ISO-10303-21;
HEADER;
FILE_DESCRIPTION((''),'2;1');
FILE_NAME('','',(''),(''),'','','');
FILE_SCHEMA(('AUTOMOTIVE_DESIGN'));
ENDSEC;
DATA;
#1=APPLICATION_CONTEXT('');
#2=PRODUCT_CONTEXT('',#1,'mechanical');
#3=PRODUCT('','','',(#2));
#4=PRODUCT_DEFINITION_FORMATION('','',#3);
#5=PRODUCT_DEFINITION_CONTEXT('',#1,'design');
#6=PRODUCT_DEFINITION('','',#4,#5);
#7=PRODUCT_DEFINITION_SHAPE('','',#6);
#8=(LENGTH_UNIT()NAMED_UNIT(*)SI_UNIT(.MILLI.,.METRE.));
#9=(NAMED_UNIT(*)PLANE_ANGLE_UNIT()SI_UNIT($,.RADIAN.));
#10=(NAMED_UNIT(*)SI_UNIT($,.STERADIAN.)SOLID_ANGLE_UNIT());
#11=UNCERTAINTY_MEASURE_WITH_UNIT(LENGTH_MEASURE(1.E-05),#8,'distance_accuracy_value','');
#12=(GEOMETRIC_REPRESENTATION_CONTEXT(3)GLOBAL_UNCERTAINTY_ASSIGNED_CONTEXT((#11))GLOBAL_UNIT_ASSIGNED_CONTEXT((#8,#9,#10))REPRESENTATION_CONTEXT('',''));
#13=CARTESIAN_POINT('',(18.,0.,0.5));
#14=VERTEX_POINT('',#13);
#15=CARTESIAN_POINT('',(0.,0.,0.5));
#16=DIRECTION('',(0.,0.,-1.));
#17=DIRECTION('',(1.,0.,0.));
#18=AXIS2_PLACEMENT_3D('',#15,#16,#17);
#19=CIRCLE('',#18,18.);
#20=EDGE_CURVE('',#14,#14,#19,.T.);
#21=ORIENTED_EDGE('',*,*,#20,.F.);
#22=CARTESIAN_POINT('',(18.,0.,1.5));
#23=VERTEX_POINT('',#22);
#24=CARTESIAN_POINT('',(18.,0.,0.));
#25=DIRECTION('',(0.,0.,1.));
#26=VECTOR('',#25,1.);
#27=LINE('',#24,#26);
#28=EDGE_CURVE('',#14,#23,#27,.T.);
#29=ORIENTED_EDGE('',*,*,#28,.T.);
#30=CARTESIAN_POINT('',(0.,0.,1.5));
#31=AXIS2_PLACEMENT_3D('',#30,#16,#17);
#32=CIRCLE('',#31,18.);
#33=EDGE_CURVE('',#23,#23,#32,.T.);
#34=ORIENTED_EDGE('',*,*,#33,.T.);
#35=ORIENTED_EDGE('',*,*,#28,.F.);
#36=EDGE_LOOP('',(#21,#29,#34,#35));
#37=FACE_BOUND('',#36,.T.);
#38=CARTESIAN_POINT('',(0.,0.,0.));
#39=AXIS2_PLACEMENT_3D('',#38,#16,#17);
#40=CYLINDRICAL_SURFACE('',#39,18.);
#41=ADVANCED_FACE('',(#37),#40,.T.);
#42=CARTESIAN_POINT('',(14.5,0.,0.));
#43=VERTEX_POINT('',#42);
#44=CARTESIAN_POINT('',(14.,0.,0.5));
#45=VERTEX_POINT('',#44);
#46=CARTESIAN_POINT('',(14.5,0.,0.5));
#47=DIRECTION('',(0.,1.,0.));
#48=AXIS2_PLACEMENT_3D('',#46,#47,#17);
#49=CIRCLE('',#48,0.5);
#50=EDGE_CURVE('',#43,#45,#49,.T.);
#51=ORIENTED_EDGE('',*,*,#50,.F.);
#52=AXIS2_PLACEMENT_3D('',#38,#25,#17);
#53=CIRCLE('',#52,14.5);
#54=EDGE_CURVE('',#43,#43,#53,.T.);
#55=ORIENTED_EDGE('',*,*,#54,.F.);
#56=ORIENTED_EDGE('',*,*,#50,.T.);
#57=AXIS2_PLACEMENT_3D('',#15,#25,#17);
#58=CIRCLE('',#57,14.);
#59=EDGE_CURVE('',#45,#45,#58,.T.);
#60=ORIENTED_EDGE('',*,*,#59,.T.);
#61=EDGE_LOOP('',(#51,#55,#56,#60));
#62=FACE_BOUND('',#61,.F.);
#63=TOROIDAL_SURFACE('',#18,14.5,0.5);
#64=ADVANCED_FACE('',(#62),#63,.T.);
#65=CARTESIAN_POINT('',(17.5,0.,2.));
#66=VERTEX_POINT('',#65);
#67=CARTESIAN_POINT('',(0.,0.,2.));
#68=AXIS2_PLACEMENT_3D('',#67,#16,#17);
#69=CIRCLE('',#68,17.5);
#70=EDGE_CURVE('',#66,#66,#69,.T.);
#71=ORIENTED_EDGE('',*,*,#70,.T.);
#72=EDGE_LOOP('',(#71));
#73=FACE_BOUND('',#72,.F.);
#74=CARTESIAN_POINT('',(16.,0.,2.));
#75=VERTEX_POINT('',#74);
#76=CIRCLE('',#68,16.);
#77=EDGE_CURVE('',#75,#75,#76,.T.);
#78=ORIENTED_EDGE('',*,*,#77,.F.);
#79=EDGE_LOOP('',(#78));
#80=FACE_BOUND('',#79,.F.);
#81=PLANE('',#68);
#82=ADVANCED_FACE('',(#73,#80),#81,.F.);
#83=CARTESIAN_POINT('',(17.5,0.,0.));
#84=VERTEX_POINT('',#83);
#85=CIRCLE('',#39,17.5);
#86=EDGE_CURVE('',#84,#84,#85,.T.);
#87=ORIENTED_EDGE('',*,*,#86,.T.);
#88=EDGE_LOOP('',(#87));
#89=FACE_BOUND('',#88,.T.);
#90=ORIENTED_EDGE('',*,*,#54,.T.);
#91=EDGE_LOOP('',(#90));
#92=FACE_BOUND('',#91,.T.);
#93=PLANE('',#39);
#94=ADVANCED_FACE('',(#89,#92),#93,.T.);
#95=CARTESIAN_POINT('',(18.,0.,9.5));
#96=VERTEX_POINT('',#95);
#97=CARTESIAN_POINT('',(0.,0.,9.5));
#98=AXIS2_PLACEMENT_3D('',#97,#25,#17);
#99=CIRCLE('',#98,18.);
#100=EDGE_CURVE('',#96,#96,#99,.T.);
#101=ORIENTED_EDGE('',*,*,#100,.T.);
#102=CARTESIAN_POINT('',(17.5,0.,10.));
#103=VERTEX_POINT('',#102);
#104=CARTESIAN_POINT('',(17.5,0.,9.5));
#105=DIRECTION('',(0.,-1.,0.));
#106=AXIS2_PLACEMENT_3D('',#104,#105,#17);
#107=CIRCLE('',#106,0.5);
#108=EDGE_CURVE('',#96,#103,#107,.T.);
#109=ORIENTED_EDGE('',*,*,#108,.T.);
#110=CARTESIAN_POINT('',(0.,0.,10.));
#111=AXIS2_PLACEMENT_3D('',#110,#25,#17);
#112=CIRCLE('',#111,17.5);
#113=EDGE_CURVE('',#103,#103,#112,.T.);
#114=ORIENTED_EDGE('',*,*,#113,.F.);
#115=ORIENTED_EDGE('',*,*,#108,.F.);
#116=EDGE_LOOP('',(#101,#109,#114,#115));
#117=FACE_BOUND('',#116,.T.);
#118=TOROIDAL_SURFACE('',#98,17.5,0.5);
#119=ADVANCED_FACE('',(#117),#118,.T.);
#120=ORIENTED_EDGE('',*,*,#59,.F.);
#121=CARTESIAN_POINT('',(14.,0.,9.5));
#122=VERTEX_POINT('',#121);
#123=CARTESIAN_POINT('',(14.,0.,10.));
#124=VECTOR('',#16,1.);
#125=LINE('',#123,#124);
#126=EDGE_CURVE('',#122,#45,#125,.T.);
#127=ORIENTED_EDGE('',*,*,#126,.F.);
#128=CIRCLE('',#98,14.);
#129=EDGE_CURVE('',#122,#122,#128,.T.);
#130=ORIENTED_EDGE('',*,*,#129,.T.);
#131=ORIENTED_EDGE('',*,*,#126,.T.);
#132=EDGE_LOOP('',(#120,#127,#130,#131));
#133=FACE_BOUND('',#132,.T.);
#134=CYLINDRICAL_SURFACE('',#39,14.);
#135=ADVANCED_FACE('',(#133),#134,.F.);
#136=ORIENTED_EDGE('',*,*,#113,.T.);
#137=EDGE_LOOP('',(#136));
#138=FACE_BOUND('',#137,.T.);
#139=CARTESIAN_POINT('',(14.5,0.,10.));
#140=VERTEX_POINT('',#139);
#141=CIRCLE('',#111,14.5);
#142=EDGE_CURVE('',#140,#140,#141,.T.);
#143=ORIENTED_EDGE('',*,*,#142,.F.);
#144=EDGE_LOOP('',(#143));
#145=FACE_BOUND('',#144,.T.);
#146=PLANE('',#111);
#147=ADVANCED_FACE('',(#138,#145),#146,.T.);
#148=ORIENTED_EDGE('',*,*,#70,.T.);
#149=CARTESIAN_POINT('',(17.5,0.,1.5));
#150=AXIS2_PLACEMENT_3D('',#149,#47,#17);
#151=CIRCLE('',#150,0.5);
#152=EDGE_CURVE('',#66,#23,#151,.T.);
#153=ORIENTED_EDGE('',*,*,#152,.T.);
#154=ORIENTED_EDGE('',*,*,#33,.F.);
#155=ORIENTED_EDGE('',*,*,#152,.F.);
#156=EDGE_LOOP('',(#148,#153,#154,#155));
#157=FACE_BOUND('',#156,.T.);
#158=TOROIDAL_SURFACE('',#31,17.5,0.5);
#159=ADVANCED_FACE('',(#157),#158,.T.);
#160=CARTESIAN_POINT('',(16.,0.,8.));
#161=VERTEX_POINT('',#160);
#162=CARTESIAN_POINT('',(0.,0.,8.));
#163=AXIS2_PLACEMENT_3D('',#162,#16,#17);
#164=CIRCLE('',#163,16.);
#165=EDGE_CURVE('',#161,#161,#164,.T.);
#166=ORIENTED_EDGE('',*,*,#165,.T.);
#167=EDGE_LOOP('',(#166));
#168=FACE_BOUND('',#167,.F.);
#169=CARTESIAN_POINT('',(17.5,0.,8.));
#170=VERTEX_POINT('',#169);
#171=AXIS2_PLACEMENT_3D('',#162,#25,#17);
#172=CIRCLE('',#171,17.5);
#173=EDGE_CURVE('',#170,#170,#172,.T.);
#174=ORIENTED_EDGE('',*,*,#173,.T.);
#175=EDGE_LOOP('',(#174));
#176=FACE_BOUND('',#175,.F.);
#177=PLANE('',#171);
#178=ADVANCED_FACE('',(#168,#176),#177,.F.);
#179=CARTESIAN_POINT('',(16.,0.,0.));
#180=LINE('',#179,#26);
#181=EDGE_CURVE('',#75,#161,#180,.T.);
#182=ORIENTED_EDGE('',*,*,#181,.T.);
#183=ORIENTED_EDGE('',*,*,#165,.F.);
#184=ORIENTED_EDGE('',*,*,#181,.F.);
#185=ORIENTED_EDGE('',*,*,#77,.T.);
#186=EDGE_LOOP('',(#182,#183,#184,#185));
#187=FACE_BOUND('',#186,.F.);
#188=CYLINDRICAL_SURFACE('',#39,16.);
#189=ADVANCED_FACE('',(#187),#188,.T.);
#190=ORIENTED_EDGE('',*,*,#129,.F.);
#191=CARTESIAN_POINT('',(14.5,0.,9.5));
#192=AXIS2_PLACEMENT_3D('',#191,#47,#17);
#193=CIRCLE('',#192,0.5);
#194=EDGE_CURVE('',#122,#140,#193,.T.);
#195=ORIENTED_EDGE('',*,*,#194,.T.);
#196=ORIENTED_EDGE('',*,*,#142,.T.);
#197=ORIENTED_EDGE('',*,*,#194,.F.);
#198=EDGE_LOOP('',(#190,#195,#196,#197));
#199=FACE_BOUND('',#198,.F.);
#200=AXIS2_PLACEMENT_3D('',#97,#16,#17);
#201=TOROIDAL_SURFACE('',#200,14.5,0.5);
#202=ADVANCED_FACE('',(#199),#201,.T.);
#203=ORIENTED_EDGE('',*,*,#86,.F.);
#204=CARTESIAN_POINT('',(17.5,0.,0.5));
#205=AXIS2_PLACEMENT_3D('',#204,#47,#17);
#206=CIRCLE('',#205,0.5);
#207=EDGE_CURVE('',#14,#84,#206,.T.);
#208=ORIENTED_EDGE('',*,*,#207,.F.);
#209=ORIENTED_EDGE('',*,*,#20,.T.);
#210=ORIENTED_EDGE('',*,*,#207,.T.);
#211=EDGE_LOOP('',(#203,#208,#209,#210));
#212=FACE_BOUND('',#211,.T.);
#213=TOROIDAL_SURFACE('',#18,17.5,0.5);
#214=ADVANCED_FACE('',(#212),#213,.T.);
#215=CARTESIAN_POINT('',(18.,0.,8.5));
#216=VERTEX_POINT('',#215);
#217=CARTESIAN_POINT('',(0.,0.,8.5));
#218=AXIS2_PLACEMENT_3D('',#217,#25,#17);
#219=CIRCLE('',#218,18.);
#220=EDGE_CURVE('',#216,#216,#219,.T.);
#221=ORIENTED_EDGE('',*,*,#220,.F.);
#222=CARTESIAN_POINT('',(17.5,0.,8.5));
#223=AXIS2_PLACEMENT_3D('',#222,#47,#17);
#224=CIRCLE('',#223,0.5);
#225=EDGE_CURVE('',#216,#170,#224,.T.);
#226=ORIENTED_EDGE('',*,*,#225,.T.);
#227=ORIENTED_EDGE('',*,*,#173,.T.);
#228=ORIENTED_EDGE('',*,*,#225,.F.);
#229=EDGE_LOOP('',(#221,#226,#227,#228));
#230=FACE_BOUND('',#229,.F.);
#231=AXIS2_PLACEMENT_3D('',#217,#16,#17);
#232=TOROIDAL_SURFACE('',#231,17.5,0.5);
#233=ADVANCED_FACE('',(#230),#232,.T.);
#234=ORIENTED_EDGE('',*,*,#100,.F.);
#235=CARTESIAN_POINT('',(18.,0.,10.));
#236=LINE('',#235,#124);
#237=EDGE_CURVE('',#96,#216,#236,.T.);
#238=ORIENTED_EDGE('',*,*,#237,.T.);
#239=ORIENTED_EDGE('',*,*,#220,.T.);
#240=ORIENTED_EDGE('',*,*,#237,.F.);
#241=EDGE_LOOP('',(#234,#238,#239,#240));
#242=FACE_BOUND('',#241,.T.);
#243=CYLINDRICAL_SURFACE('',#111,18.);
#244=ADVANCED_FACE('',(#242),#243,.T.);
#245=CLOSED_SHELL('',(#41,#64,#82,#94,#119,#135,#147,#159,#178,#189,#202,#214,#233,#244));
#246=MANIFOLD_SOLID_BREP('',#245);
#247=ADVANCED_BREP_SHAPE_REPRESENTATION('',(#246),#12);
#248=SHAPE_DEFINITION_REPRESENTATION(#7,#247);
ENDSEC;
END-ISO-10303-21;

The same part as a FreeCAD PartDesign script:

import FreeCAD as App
import Part
import Sketcher
from FreeCAD import Vector


def edges_at(feature, points):
    """Names of the edges that pass closest to the given points."""
    edges = feature.Shape.Edges
    near = lambda p: min(range(len(edges)), key=lambda i: edges[i].distToShape(Part.Vertex(*p))[0])
    return sorted({f"Edge{near(p) + 1}" for p in points})

doc = App.newDocument("Part")
params = doc.addObject("Spreadsheet::Sheet", "Params")
for row, (alias, value) in enumerate([
    ("sketch1_diameter", "32 mm"),
    ("sketch1_diameter2", "28 mm"),
    ("pad1_length", "10 mm"),
    ("sketch2_diameter", "36 mm"),
    ("sketch2_diameter2", "32 mm"),
    ("pad2_length", "2 mm"),
    ("sketch3_diameter", "36 mm"),
    ("sketch3_diameter2", "28 mm"),
    ("pad3_length", "2 mm"),
    ("fillet_radius", "0.5 mm"),
], start=1):
    params.set(f"A{row}", alias)
    params.set(f"B{row}", "=" + value)
    params.setAlias(f"B{row}", alias)

body = doc.addObject("PartDesign::Body", "Body")

# Sketch on XY plane
sketch1 = body.newObject("Sketcher::SketchObject", "Sketch")
sketch1.AttachmentSupport = (doc.getObject("XY_Plane"), [""])
sketch1.MapMode = "FlatFace"
sketch1.addGeometry([
    Part.Circle(Vector(0, 0, 0), Vector(0, 0, 1), 16),
    Part.Circle(Vector(0, 0, 0), Vector(0, 0, 1), 14),
], False)
sketch1.addConstraint([
    Sketcher.Constraint("Coincident", 0, 3, -1, 1),
    Sketcher.Constraint("Coincident", 1, 3, -1, 1),
    Sketcher.Constraint("Diameter", 0, 32.0),
    Sketcher.Constraint("Diameter", 1, 28.0),
])
sketch1.setExpression("Constraints[2]", "Params.sketch1_diameter")
sketch1.setExpression("Constraints[3]", "Params.sketch1_diameter2")
pad1 = body.newObject("PartDesign::Pad", "Pad")
pad1.Profile = sketch1
pad1.setExpression("Length", "Params.pad1_length")

# Sketch on XY plane
sketch2 = body.newObject("Sketcher::SketchObject", "Sketch001")
sketch2.AttachmentSupport = (doc.getObject("XY_Plane"), [""])
sketch2.MapMode = "FlatFace"
sketch2.addGeometry([
    Part.Circle(Vector(0, 0, 0), Vector(0, 0, 1), 18),
    Part.Circle(Vector(0, 0, 0), Vector(0, 0, 1), 16),
], False)
sketch2.addConstraint([
    Sketcher.Constraint("Coincident", 0, 3, -1, 1),
    Sketcher.Constraint("Coincident", 1, 3, -1, 1),
    Sketcher.Constraint("Diameter", 0, 36.0),
    Sketcher.Constraint("Diameter", 1, 32.0),
])
sketch2.setExpression("Constraints[2]", "Params.sketch2_diameter")
sketch2.setExpression("Constraints[3]", "Params.sketch2_diameter2")
pad2 = body.newObject("PartDesign::Pad", "Pad001")
pad2.Profile = sketch2
pad2.setExpression("Length", "Params.pad2_length")

# Sketch on XY plane
sketch3 = body.newObject("Sketcher::SketchObject", "Sketch002")
sketch3.AttachmentSupport = (doc.getObject("XY_Plane"), [""])
sketch3.MapMode = "FlatFace"
sketch3.AttachmentOffset = App.Placement(Vector(0, 0, 10), App.Rotation())
sketch3.addGeometry([
    Part.Circle(Vector(0, 0, 0), Vector(0, 0, 1), 18),
    Part.Circle(Vector(0, 0, 0), Vector(0, 0, 1), 14),
], False)
sketch3.addConstraint([
    Sketcher.Constraint("Coincident", 0, 3, -1, 1),
    Sketcher.Constraint("Coincident", 1, 3, -1, 1),
    Sketcher.Constraint("Diameter", 0, 36.0),
    Sketcher.Constraint("Diameter", 1, 28.0),
])
sketch3.setExpression("Constraints[2]", "Params.sketch3_diameter")
sketch3.setExpression("Constraints[3]", "Params.sketch3_diameter2")
pad3 = body.newObject("PartDesign::Pad", "Pad002")
pad3.Profile = sketch3
pad3.setExpression("Length", "Params.pad3_length")
pad3.Reversed = True
doc.recompute()

fillet = body.newObject("PartDesign::Fillet", "Fillet")
fillet.Base = (pad3, edges_at(pad3, [
    (-18, 0, 10),
    (-18, 0, 0),
    (-18, 0, 8),
    (-18, 0, 2),
    (-14, 0, 0),
    (-14, 0, 10),
]))
fillet.setExpression("Radius", "Params.fillet_radius")

doc.recompute()
